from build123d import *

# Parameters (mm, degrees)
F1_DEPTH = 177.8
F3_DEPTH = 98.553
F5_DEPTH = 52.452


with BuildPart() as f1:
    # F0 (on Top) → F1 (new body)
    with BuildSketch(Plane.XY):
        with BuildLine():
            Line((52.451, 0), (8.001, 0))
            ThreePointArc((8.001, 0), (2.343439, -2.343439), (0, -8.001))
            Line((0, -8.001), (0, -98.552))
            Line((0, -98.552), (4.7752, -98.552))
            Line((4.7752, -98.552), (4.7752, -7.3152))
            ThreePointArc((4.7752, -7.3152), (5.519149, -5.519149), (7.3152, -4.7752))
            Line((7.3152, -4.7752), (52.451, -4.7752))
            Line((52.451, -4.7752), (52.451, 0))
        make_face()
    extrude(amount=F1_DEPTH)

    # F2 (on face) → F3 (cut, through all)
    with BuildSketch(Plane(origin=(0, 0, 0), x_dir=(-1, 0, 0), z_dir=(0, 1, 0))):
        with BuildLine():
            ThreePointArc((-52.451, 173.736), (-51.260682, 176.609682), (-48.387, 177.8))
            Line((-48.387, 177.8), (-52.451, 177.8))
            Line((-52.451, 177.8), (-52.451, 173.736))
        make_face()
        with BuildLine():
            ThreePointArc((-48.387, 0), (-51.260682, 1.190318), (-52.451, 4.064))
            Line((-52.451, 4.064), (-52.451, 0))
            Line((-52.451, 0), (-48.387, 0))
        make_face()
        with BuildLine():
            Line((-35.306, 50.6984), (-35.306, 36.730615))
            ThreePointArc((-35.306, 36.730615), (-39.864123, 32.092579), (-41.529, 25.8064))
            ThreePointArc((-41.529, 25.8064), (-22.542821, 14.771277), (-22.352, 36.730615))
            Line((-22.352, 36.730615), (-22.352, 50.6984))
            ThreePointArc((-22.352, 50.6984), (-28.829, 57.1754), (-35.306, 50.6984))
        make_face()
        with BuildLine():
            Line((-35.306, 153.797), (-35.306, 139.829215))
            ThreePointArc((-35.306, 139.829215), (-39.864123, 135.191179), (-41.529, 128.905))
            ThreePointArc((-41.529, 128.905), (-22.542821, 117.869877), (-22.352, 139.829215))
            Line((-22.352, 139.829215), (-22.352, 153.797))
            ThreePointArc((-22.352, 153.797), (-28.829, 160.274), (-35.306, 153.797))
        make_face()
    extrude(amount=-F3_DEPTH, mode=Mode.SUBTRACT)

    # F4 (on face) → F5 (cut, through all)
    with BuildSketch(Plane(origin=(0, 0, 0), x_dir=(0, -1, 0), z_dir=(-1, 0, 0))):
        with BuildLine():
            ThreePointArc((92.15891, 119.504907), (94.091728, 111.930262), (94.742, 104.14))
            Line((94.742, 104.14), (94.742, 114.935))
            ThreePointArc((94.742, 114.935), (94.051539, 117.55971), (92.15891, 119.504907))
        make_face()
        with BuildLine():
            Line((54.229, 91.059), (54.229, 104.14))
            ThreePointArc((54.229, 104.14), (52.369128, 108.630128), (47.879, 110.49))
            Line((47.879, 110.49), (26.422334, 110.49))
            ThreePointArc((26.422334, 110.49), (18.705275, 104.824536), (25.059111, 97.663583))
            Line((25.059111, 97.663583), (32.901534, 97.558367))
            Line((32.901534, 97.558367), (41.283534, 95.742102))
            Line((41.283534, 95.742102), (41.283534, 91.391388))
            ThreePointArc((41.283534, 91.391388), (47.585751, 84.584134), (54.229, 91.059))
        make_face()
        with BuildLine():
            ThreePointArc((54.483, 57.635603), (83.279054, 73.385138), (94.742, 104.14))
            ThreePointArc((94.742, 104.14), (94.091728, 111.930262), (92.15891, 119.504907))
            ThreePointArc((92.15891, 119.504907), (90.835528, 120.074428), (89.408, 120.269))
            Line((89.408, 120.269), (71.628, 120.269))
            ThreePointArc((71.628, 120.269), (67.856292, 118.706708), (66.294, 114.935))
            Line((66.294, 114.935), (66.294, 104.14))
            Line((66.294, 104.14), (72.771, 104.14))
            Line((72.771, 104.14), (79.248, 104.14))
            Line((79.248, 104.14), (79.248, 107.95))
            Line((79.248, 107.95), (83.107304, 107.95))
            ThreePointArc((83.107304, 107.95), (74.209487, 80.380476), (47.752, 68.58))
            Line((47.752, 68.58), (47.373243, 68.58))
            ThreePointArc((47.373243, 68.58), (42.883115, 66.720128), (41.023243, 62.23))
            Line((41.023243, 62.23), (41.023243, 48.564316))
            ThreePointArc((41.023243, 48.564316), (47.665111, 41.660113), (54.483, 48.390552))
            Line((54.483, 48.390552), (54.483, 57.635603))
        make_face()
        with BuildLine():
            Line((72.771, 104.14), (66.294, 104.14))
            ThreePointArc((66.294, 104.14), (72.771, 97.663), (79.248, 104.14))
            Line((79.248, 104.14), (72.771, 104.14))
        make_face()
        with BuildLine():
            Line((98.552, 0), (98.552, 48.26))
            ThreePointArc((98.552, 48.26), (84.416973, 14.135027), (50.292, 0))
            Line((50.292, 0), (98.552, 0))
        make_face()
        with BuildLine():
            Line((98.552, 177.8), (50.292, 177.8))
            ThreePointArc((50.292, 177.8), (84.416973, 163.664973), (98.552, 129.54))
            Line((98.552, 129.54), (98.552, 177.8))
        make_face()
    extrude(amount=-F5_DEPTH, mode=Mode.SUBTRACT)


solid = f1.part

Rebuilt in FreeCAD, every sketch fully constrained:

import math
import FreeCAD as App
import Part
import Sketcher
Q = App.Units.Quantity

doc = App.newDocument("Part")
params = doc.addObject("Spreadsheet::Sheet", "Params")
for row, (alias, value) in enumerate([
    ("sketch1_radius", "0.1 in"),
    ("sketch1_radius2", "0.315 in"),
    ("sketch1_width", "1.75 in"),
    ("sketch1_width2", "0.188 in"),
    ("sketch1_height", "3.565 in"),
    ("pad1_length", "7 in"),
    ("sketch2_radius", "0.5000002 in"),
    ("sketch2_radius2", "0.16 in"),
    ("sketch2_radius3", "0.255 in"),
    ("sketch3_radius", "1.4 in"),
    ("sketch3_radius2", "1.9 in"),
    ("sketch3_radius3", "0.21 in"),
    ("sketch3_radius4", "0.25 in"),
    ("sketch3_width", "0.7 in"),
], start=1):
    params.set(f"A{row}", alias)
    params.set(f"B{row}", "=" + value)
    params.setAlias(f"B{row}", alias)

body = doc.addObject("PartDesign::Body", "Body")

# Sketch on XY plane
sketch1 = body.newObject("Sketcher::SketchObject", "Sketch")
sketch1.AttachmentSupport = (doc.getObject("XY_Plane"), [""])
sketch1.MapMode = "FlatFace"
sketch1.addGeometry([
    Part.LineSegment(App.Vector(52.5, 0, 0), App.Vector(8, 0, 0)),  # 0
    Part.ArcOfCircle(Part.Circle(App.Vector(8, -8, 0), App.Vector(0, 0, 1), 8), math.radians(90), math.radians(180)),  # 1
    Part.LineSegment(App.Vector(0, -8, 0), App.Vector(0, -98.6, 0)),  # 2
    Part.LineSegment(App.Vector(0, -98.6, 0), App.Vector(4.8, -98.6, 0)),  # 3
    Part.LineSegment(App.Vector(4.8, -98.6, 0), App.Vector(4.8, -7.3, 0)),  # 4
    Part.ArcOfCircle(Part.Circle(App.Vector(7.3, -7.3, 0), App.Vector(0, 0, 1), 2.5), math.radians(90), math.radians(180)),  # 5
    Part.LineSegment(App.Vector(7.3, -4.8, 0), App.Vector(52.5, -4.8, 0)),  # 6
    Part.LineSegment(App.Vector(52.5, -4.8, 0), App.Vector(52.5, 0, 0)),  # 7
], False)
sketch1.addConstraint([
    Sketcher.Constraint("Tangent", 0, 2, 1, 1),
    Sketcher.Constraint("Tangent", 1, 2, 2, 1),
    Sketcher.Constraint("Coincident", 2, 2, 3, 1),
    Sketcher.Constraint("Coincident", 3, 2, 4, 1),
    Sketcher.Constraint("Tangent", 4, 2, 5, 2),
    Sketcher.Constraint("Tangent", 5, 1, 6, 1),
    Sketcher.Constraint("Coincident", 6, 2, 7, 1),
    Sketcher.Constraint("Coincident", 7, 2, 0, 1),
    Sketcher.Constraint("Horizontal", 0),
    Sketcher.Constraint("Vertical", 2),
    Sketcher.Constraint("Horizontal", 3),
    Sketcher.Constraint("Vertical", 4),
    Sketcher.Constraint("Horizontal", 6),
    Sketcher.Constraint("Vertical", 7),
    Sketcher.Constraint("PointOnObject", 0, 2, -1),
    Sketcher.Constraint("PointOnObject", 1, 2, -2),
    Sketcher.Constraint("Equal", 3, 7),
    Sketcher.Constraint("Radius", 5, Q("0.1 in")),
    Sketcher.Constraint("Radius", 1, Q("0.315 in")),
    Sketcher.Constraint("DistanceX", 0, 2, 0, 1, Q("1.75 in")),
    Sketcher.Constraint("DistanceX", 3, 1, 3, 2, Q("0.188 in")),
    Sketcher.Constraint("DistanceY", 2, 2, 2, 1, Q("3.565 in")),
])
sketch1.setExpression("Constraints[17]", "Params.sketch1_radius")
sketch1.setExpression("Constraints[18]", "Params.sketch1_radius2")
sketch1.setExpression("Constraints[19]", "Params.sketch1_width")
sketch1.setExpression("Constraints[20]", "Params.sketch1_width2")
sketch1.setExpression("Constraints[21]", "Params.sketch1_height")
pad1 = body.newObject("PartDesign::Pad", "Pad")
pad1.Profile = sketch1
pad1.setExpression("Length", "Params.pad1_length")

# Sketch on XZ plane
sketch2 = body.newObject("Sketcher::SketchObject", "Sketch001")
sketch2.AttachmentSupport = (doc.getObject("XZ_Plane"), [""])
sketch2.MapMode = "FlatFace"
sketch2.addGeometry([
    Part.ArcOfCircle(Part.Circle(App.Vector(48.4, 173.7, 0), App.Vector(0, 0, 1), 4.1), math.radians(0), math.radians(90)),  # 0
    Part.LineSegment(App.Vector(48.4, 177.8, 0), App.Vector(52.5, 177.8, 0)),  # 1
    Part.LineSegment(App.Vector(52.5, 177.8, 0), App.Vector(52.5, 173.7, 0)),  # 2
    Part.ArcOfCircle(Part.Circle(App.Vector(48.4, 4.1, 0), App.Vector(0, 0, 1), 4.1), math.radians(-90), math.radians(0)),  # 3
    Part.LineSegment(App.Vector(52.5, 4.1, 0), App.Vector(52.5, 0, 0)),  # 4
    Part.LineSegment(App.Vector(52.5, 0, 0), App.Vector(48.4, 0, 0)),  # 5
    Part.LineSegment(App.Vector(35.3, 50.7, 0), App.Vector(35.3, 36.7, 0)),  # 6
    Part.ArcOfCircle(Part.Circle(App.Vector(28.8, 25.8, 0), App.Vector(0, 0, 1), 12.7), math.radians(0), math.radians(59)),  # 7
    Part.ArcOfCircle(Part.Circle(App.Vector(28.8, 25.8, 0), App.Vector(0, 0, 1), 12.7), math.radians(121), math.radians(360)),  # 8
    Part.LineSegment(App.Vector(22.4, 36.7, 0), App.Vector(22.4, 50.7, 0)),  # 9
    Part.ArcOfCircle(Part.Circle(App.Vector(28.8, 50.7, 0), App.Vector(0, 0, 1), 6.5), math.radians(0), math.radians(180)),  # 10
    Part.LineSegment(App.Vector(35.3, 153.8, 0), App.Vector(35.3, 139.8, 0)),  # 11
    Part.ArcOfCircle(Part.Circle(App.Vector(28.8, 128.9, 0), App.Vector(0, 0, 1), 12.7), math.radians(0), math.radians(59)),  # 12
    Part.ArcOfCircle(Part.Circle(App.Vector(28.8, 128.9, 0), App.Vector(0, 0, 1), 12.7), math.radians(121), math.radians(360)),  # 13
    Part.LineSegment(App.Vector(22.4, 139.8, 0), App.Vector(22.4, 153.8, 0)),  # 14
    Part.ArcOfCircle(Part.Circle(App.Vector(28.8, 153.8, 0), App.Vector(0, 0, 1), 6.5), math.radians(0), math.radians(180)),  # 15
], False)
sketch2.addConstraint([
    Sketcher.Constraint("Tangent", 0, 2, 1, 1),
    Sketcher.Constraint("Coincident", 1, 2, 2, 1),
    Sketcher.Constraint("Tangent", 2, 2, 0, 1),
    Sketcher.Constraint("Tangent", 3, 2, 4, 1),
    Sketcher.Constraint("Coincident", 4, 2, 5, 1),
    Sketcher.Constraint("Tangent", 5, 2, 3, 1),
    Sketcher.Constraint("Coincident", 6, 2, 7, 2),
    Sketcher.Constraint("Tangent", 7, 1, 8, 2),
    Sketcher.Constraint("Coincident", 8, 1, 9, 1),
    Sketcher.Constraint("Tangent", 9, 2, 10, 2),
    Sketcher.Constraint("Tangent", 10, 1, 6, 1),
    Sketcher.Constraint("Coincident", 11, 2, 12, 2),
    Sketcher.Constraint("Tangent", 12, 1, 13, 2),
    Sketcher.Constraint("Coincident", 13, 1, 14, 1),
    Sketcher.Constraint("Tangent", 14, 2, 15, 2),
    Sketcher.Constraint("Tangent", 15, 1, 11, 1),
    Sketcher.Constraint("Horizontal", 1),
    Sketcher.Constraint("Vertical", 2),
    Sketcher.Constraint("Vertical", 4),
    Sketcher.Constraint("Horizontal", 5),
    Sketcher.Constraint("Vertical", 6),
    Sketcher.Constraint("Vertical", 9),
    Sketcher.Constraint("Vertical", 11),
    Sketcher.Constraint("Vertical", 14),
    Sketcher.Constraint("Equal", 0, 3),
    Sketcher.Constraint("Equal", 7, 12),
    Sketcher.Constraint("Equal", 8, 13),
    Sketcher.Constraint("Equal", 10, 15),
    Sketcher.Constraint("PointOnObject", 4, 2, -1),
    Sketcher.Constraint("Horizontal", 8, 3, 7, 1),
    Sketcher.Constraint("Horizontal", 6, 2, 8, 1),
    Sketcher.Constraint("Horizontal", 13, 3, 12, 1),
    Sketcher.Constraint("Horizontal", 11, 2, 13, 1),
    Sketcher.Constraint("Vertical", 0, 3, 3, 3),
    Sketcher.Constraint("Vertical", 8, 3, 10, 3),
    Sketcher.Constraint("Vertical", 7, 3, 12, 3),
    Sketcher.Constraint("Equal", 9, 11),
    Sketcher.Constraint("Radius", 7, Q("0.5000002 in")),
    Sketcher.Constraint("Radius", 0, Q("0.16 in")),
    Sketcher.Constraint("DistanceY", -1, 1, 0, 2, Q("7 in")),
    Sketcher.Constraint("Radius", 10, Q("0.255 in")),
    Sketcher.Constraint("DistanceX", -1, 1, 6, 2, Q("1.39 in")),
    Sketcher.Constraint("DistanceX", 7, 3, 3, 3, Q("0.7700002 in")),
    Sketcher.Constraint("DistanceY", 8, 3, 10, 3, Q("0.98 in")),
    Sketcher.Constraint("DistanceY", -1, 1, 7, 3, Q("1.0159999 in")),
    Sketcher.Constraint("DistanceY", -1, 1, 12, 3, Q("5.0749999 in")),
])
sketch2.setExpression("Constraints[37]", "Params.sketch2_radius")
sketch2.setExpression("Constraints[38]", "Params.sketch2_radius2")
sketch2.setExpression("Constraints[40]", "Params.sketch2_radius3")
pocket1 = body.newObject("PartDesign::Pocket", "Pocket")
pocket1.Profile = sketch2
pocket1.Type = "ThroughAll"
pocket1.Reversed = True

# Sketch on YZ plane
sketch3 = body.newObject("Sketcher::SketchObject", "Sketch002")
sketch3.AttachmentSupport = (doc.getObject("YZ_Plane"), [""])
sketch3.MapMode = "FlatFace"
sketch3.addGeometry([
    Part.LineSegment(App.Vector(-94.74, 104.14, 0), App.Vector(-94.74, 114.94, 0)),  # 0
    Part.ArcOfCircle(Part.Circle(App.Vector(-89.41, 114.94, 0), App.Vector(0, 0, 1), 5.33), math.radians(121), math.radians(180)),  # 1
    Part.ArcOfCircle(Part.Circle(App.Vector(-89.41, 114.94, 0), App.Vector(0, 0, 1), 5.33), math.radians(90), math.radians(121)),  # 2
    Part.LineSegment(App.Vector(-89.41, 120.27, 0), App.Vector(-71.63, 120.27, 0)),  # 3
    Part.ArcOfCircle(Part.Circle(App.Vector(-71.63, 114.94, 0), App.Vector(0, 0, 1), 5.33), math.radians(0), math.radians(90)),  # 4
    Part.LineSegment(App.Vector(-66.29, 114.94, 0), App.Vector(-66.29, 104.14, 0)),  # 5
    Part.ArcOfCircle(Part.Circle(App.Vector(-72.77, 104.14, 0), App.Vector(0, 0, 1), 6.48), math.radians(180), math.radians(360)),  # 6
    Part.LineSegment(App.Vector(-79.25, 104.14, 0), App.Vector(-79.25, 107.95, 0)),  # 7
    Part.LineSegment(App.Vector(-79.25, 107.95, 0), App.Vector(-83.11, 107.95, 0)),  # 8
    Part.ArcOfCircle(Part.Circle(App.Vector(-47.75, 104.14, 0), App.Vector(0, 0, 1), 35.56), math.radians(174), math.radians(270)),  # 9
    Part.LineSegment(App.Vector(-47.75, 68.58, 0), App.Vector(-47.37, 68.58, 0)),  # 10
    Part.ArcOfCircle(Part.Circle(App.Vector(-47.37, 62.23, 0), App.Vector(0, 0, 1), 6.35), math.radians(0), math.radians(90)),  # 11
    Part.LineSegment(App.Vector(-41.02, 62.23, 0), App.Vector(-41.02, 48.56, 0)),  # 12
    Part.ArcOfCircle(Part.Circle(App.Vector(-47.75, 48.39, 0), App.Vector(0, 0, 1), 6.73), math.radians(-180), math.radians(1)),  # 13
    Part.LineSegment(App.Vector(-54.48, 48.39, 0), App.Vector(-54.48, 57.64, 0)),  # 14
    Part.ArcOfCircle(Part.Circle(App.Vector(-47.75, 104.14, 0), App.Vector(0, 0, 1), 46.99), math.radians(-180), math.radians(-98)),  # 15
    Part.LineSegment(App.Vector(-54.23, 91.06, 0), App.Vector(-54.23, 104.14, 0)),  # 16
    Part.ArcOfCircle(Part.Circle(App.Vector(-47.88, 104.14, 0), App.Vector(0, 0, 1), 6.35), math.radians(90), math.radians(180)),  # 17
    Part.LineSegment(App.Vector(-47.88, 110.49, 0), App.Vector(-26.42, 110.49, 0)),  # 18
    Part.ArcOfCircle(Part.Circle(App.Vector(-25.15, 104.14, 0), App.Vector(0, 0, 1), 6.48), math.radians(-89), math.radians(101)),  # 19
    Part.LineSegment(App.Vector(-25.06, 97.66, 0), App.Vector(-32.9, 97.56, 0)),  # 20
    Part.LineSegment(App.Vector(-32.9, 97.56, 0), App.Vector(-41.28, 95.74, 0)),  # 21
    Part.LineSegment(App.Vector(-41.28, 95.74, 0), App.Vector(-41.28, 91.39, 0)),  # 22
    Part.ArcOfCircle(Part.Circle(App.Vector(-47.75, 91.06, 0), App.Vector(0, 0, 1), 6.48), math.radians(-180), math.radians(3)),  # 23
    Part.LineSegment(App.Vector(-98.55, 0, 0), App.Vector(-98.55, 48.26, 0)),  # 24
    Part.ArcOfCircle(Part.Circle(App.Vector(-50.29, 48.26, 0), App.Vector(0, 0, 1), 48.26), math.radians(-180), math.radians(-90)),  # 25
    Part.LineSegment(App.Vector(-50.29, 0, 0), App.Vector(-98.55, 0, 0)),  # 26
    Part.LineSegment(App.Vector(-98.55, 177.8, 0), App.Vector(-50.29, 177.8, 0)),  # 27
    Part.ArcOfCircle(Part.Circle(App.Vector(-50.29, 129.54, 0), App.Vector(0, 0, 1), 48.26), math.radians(90), math.radians(180)),  # 28
    Part.LineSegment(App.Vector(-98.55, 129.54, 0), App.Vector(-98.55, 177.8, 0)),  # 29
], False)
sketch3.addConstraint([
    Sketcher.Constraint("Tangent", 0, 2, 1, 2),
    Sketcher.Constraint("Tangent", 1, 1, 2, 2),
    Sketcher.Constraint("Tangent", 2, 1, 3, 1),
    Sketcher.Constraint("Tangent", 3, 2, 4, 2),
    Sketcher.Constraint("Tangent", 4, 1, 5, 1),
    Sketcher.Constraint("Tangent", 5, 2, 6, 2),
    Sketcher.Constraint("Tangent", 6, 1, 7, 1),
    Sketcher.Constraint("Coincident", 7, 2, 8, 1),
    Sketcher.Constraint("Coincident", 8, 2, 9, 1),
    Sketcher.Constraint("Tangent", 9, 2, 10, 1),
    Sketcher.Constraint("Tangent", 10, 2, 11, 2),
    Sketcher.Constraint("Tangent", 11, 1, 12, 1),
    Sketcher.Constraint("Coincident", 12, 2, 13, 2),
    Sketcher.Constraint("Tangent", 13, 1, 14, 1),
    Sketcher.Constraint("Coincident", 14, 2, 15, 2),
    Sketcher.Constraint("Tangent", 15, 1, 0, 1),
    Sketcher.Constraint("Tangent", 16, 2, 17, 2),
    Sketcher.Constraint("Tangent", 17, 1, 18, 1),
    Sketcher.Constraint("Coincident", 18, 2, 19, 2),
    Sketcher.Constraint("Tangent", 19, 1, 20, 1),
    Sketcher.Constraint("Coincident", 20, 2, 21, 1),
    Sketcher.Constraint("Coincident", 21, 2, 22, 1),
    Sketcher.Constraint("Coincident", 22, 2, 23, 2),
    Sketcher.Constraint("Tangent", 23, 1, 16, 1),
    Sketcher.Constraint("Tangent", 24, 2, 25, 1),
    Sketcher.Constraint("Tangent", 25, 2, 26, 1),
    Sketcher.Constraint("Coincident", 26, 2, 24, 1),
    Sketcher.Constraint("Tangent", 27, 2, 28, 1),
    Sketcher.Constraint("Tangent", 28, 2, 29, 1),
    Sketcher.Constraint("Coincident", 29, 2, 27, 1),
    Sketcher.Constraint("Vertical", 0),
    Sketcher.Constraint("Horizontal", 3),
    Sketcher.Constraint("Vertical", 5),
    Sketcher.Constraint("Vertical", 7),
    Sketcher.Constraint("Horizontal", 8),
    Sketcher.Constraint("Horizontal", 10),
    Sketcher.Constraint("Vertical", 12),
    Sketcher.Constraint("Vertical", 14),
    Sketcher.Constraint("Vertical", 16),
    Sketcher.Constraint("Horizontal", 18),
    Sketcher.Constraint("Vertical", 22),
    Sketcher.Constraint("Vertical", 24),
    Sketcher.Constraint("Horizontal", 26),
    Sketcher.Constraint("Horizontal", 27),
    Sketcher.Constraint("Vertical", 29),
    Sketcher.Constraint("Equal", 1, 2),
    Sketcher.Constraint("Equal", 2, 4),
    Sketcher.Constraint("Equal", 11, 17),
    Sketcher.Constraint("Equal", 6, 19),
    Sketcher.Constraint("Equal", 19, 23),
    Sketcher.Constraint("Equal", 25, 28),
    Sketcher.Constraint("PointOnObject", 25, 2, -1),
    Sketcher.Constraint("Horizontal", 6, 3, 9, 3),
    Sketcher.Constraint("Horizontal", 9, 3, 15, 3),
    Sketcher.Constraint("Horizontal", 15, 3, 17, 3),
    Sketcher.Constraint("Horizontal", 17, 3, 19, 3),
    Sketcher.Constraint("Vertical", 9, 3, 13, 3),
    Sketcher.Constraint("Vertical", 13, 3, 23, 3),
    Sketcher.Constraint("Vertical", 25, 3, 28, 3),
    Sketcher.Constraint("Radius", 9, Q("1.4 in")),
    Sketcher.Constraint("Radius", 25, Q("1.9 in")),
    Sketcher.Constraint("Radius", 1, Q("0.21 in")),
    Sketcher.Constraint("Radius", 11, Q("0.25 in")),
    Sketcher.Constraint("DistanceX", 3, 1, 3, 2, Q("0.7 in")),
    Sketcher.Constraint("DistanceY", -1, 1, 27, 2, Q("7 in")),
    Sketcher.Constraint("Radius", 6, Q("0.255 in")),
    Sketcher.Constraint("Radius", 13, Q("0.265 in")),
    Sketcher.Constraint("DistanceY", 17, 3, 28, 3, Q("1 in")),
    Sketcher.Constraint("DistanceX", 24, 2, 13, 3, Q("2 in")),
    Sketcher.Constraint("DistanceY", 7, 1, 7, 2, Q("0.15 in")),
    Sketcher.Constraint("DistanceY", 0, 1, 0, 2, Q("0.425 in")),
    Sketcher.Constraint("DistanceY", 16, 1, 16, 2, Q("0.515 in")),
    Sketcher.Constraint("DistanceX", 1, 3, -1, 1, Q("3.52 in")),
    Sketcher.Constraint("DistanceX", 9, 3, -1, 1, Q("1.88 in")),
    Sketcher.Constraint("DistanceX", 19, 3, -1, 1, Q("0.99 in")),
    Sketcher.Constraint("DistanceX", 21, 2, 20, 2, Q("0.33 in")),
    Sketcher.Constraint("Radius", 15, Q("46.988823 mm")),
    Sketcher.Constraint("DistanceY", 14, 1, 14, 2, Q("9.245051 mm")),
    Sketcher.Constraint("DistanceX", 20, 2, 18, 2, Q("6.4792 mm")),
    Sketcher.Constraint("DistanceY", 23, 3, 21, 2, Q("4.683102 mm")),
    Sketcher.Constraint("Distance", 20, Q("7.843129 mm")),
    Sketcher.Constraint("DistanceX", 10, 1, 10, 2, Q("0.378757 mm")),
    Sketcher.Constraint("DistanceX", 1, 1, -1, 1, Q("92.15891 mm")),
])
sketch3.setExpression("Constraints[59]", "Params.sketch3_radius")
sketch3.setExpression("Constraints[60]", "Params.sketch3_radius2")
sketch3.setExpression("Constraints[61]", "Params.sketch3_radius3")
sketch3.setExpression("Constraints[62]", "Params.sketch3_radius4")
sketch3.setExpression("Constraints[63]", "Params.sketch3_width")
pocket2 = body.newObject("PartDesign::Pocket", "Pocket001")
pocket2.Profile = sketch3
pocket2.Type = "ThroughAll"
pocket2.Reversed = True

doc.recompute()
